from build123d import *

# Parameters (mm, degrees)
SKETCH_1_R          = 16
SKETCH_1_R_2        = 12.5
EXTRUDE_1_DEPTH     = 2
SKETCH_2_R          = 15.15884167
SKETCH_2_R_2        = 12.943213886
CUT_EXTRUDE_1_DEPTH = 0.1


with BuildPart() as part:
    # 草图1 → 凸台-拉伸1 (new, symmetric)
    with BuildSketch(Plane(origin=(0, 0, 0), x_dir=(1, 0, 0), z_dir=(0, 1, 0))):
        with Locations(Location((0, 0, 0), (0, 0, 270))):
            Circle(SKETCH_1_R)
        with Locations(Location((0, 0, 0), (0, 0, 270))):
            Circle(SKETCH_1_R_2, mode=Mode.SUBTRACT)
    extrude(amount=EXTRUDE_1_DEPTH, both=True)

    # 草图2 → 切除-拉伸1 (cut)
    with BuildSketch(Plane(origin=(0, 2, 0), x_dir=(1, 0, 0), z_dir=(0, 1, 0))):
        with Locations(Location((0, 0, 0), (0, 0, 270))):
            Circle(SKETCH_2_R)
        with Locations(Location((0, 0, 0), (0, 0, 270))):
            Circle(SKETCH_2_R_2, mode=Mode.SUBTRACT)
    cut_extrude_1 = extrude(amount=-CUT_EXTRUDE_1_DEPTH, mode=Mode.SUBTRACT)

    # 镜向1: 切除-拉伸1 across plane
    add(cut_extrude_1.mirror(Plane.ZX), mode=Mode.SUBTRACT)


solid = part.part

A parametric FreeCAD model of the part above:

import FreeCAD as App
import Part
import Sketcher

V = App.Vector

doc = App.newDocument("Part")
params = doc.addObject("Spreadsheet::Sheet", "Params")
for row, (alias, value) in enumerate([
    ("sketch1_diameter", "32 mm"),
    ("sketch1_diameter2", "25 mm"),
    ("pad1_length", "4 mm"),
    ("pocket1_length", "0.1 mm"),
], start=1):
    params.set(f"A{row}", alias)
    params.set(f"B{row}", "=" + value)
    params.setAlias(f"B{row}", alias)

body = doc.addObject("PartDesign::Body", "Body")

# Sketch on XZ plane
sketch1 = doc.addObject("Sketcher::SketchObject", "Sketch")
body.addObject(sketch1)
sketch1.AttachmentSupport = (doc.XZ_Plane, [""])
sketch1.MapMode = "FlatFace"
sketch1.addGeometry(Part.Circle(V(0, 0, 0), V(0, 0, 1), 16), False)
sketch1.addGeometry(Part.Circle(V(0, 0, 0), V(0, 0, 1), 12.5), False)
sketch1.addConstraint(Sketcher.Constraint("Coincident", 0, 3, -1, 1))
sketch1.addConstraint(Sketcher.Constraint("Coincident", 1, 3, -1, 1))
sketch1.addConstraint(Sketcher.Constraint("Diameter", 0, 32.0))
sketch1.addConstraint(Sketcher.Constraint("Diameter", 1, 25.0))
sketch1.setExpression("Constraints[2]", "Params.sketch1_diameter")
sketch1.setExpression("Constraints[3]", "Params.sketch1_diameter2")
pad1 = doc.addObject("PartDesign::Pad", "Pad")
body.addObject(pad1)
pad1.Profile = sketch1
pad1.setExpression("Length", "Params.pad1_length")
pad1.Midplane = True

# Sketch on XZ plane
sketch2 = doc.addObject("Sketcher::SketchObject", "Sketch001")
body.addObject(sketch2)
sketch2.AttachmentSupport = (doc.XZ_Plane, [""])
sketch2.MapMode = "FlatFace"
sketch2.AttachmentOffset = App.Placement(V(0, 0, -2), App.Rotation())
sketch2.addGeometry(Part.Circle(V(0, 0, 0), V(0, 0, 1), 15.158842), False)
sketch2.addGeometry(Part.Circle(V(0, 0, 0), V(0, 0, 1), 12.943214), False)
sketch2.addConstraint(Sketcher.Constraint("Coincident", 0, 3, -1, 1))
sketch2.addConstraint(Sketcher.Constraint("Coincident", 1, 3, -1, 1))
sketch2.addConstraint(Sketcher.Constraint("Diameter", 0, 30.317683))
sketch2.addConstraint(Sketcher.Constraint("Diameter", 1, 25.886428))
pocket1 = doc.addObject("PartDesign::Pocket", "Pocket")
body.addObject(pocket1)
pocket1.Profile = sketch2
pocket1.setExpression("Length", "Params.pocket1_length")
pocket1.Reversed = True
doc.recompute()

mirrored = doc.addObject("PartDesign::Mirrored", "Mirrored")
body.addObject(mirrored)
mirrored.Originals = [pocket1]
mirrored.MirrorPlane = (doc.XZ_Plane, [""])
body.Tip = mirrored

doc.recompute()
